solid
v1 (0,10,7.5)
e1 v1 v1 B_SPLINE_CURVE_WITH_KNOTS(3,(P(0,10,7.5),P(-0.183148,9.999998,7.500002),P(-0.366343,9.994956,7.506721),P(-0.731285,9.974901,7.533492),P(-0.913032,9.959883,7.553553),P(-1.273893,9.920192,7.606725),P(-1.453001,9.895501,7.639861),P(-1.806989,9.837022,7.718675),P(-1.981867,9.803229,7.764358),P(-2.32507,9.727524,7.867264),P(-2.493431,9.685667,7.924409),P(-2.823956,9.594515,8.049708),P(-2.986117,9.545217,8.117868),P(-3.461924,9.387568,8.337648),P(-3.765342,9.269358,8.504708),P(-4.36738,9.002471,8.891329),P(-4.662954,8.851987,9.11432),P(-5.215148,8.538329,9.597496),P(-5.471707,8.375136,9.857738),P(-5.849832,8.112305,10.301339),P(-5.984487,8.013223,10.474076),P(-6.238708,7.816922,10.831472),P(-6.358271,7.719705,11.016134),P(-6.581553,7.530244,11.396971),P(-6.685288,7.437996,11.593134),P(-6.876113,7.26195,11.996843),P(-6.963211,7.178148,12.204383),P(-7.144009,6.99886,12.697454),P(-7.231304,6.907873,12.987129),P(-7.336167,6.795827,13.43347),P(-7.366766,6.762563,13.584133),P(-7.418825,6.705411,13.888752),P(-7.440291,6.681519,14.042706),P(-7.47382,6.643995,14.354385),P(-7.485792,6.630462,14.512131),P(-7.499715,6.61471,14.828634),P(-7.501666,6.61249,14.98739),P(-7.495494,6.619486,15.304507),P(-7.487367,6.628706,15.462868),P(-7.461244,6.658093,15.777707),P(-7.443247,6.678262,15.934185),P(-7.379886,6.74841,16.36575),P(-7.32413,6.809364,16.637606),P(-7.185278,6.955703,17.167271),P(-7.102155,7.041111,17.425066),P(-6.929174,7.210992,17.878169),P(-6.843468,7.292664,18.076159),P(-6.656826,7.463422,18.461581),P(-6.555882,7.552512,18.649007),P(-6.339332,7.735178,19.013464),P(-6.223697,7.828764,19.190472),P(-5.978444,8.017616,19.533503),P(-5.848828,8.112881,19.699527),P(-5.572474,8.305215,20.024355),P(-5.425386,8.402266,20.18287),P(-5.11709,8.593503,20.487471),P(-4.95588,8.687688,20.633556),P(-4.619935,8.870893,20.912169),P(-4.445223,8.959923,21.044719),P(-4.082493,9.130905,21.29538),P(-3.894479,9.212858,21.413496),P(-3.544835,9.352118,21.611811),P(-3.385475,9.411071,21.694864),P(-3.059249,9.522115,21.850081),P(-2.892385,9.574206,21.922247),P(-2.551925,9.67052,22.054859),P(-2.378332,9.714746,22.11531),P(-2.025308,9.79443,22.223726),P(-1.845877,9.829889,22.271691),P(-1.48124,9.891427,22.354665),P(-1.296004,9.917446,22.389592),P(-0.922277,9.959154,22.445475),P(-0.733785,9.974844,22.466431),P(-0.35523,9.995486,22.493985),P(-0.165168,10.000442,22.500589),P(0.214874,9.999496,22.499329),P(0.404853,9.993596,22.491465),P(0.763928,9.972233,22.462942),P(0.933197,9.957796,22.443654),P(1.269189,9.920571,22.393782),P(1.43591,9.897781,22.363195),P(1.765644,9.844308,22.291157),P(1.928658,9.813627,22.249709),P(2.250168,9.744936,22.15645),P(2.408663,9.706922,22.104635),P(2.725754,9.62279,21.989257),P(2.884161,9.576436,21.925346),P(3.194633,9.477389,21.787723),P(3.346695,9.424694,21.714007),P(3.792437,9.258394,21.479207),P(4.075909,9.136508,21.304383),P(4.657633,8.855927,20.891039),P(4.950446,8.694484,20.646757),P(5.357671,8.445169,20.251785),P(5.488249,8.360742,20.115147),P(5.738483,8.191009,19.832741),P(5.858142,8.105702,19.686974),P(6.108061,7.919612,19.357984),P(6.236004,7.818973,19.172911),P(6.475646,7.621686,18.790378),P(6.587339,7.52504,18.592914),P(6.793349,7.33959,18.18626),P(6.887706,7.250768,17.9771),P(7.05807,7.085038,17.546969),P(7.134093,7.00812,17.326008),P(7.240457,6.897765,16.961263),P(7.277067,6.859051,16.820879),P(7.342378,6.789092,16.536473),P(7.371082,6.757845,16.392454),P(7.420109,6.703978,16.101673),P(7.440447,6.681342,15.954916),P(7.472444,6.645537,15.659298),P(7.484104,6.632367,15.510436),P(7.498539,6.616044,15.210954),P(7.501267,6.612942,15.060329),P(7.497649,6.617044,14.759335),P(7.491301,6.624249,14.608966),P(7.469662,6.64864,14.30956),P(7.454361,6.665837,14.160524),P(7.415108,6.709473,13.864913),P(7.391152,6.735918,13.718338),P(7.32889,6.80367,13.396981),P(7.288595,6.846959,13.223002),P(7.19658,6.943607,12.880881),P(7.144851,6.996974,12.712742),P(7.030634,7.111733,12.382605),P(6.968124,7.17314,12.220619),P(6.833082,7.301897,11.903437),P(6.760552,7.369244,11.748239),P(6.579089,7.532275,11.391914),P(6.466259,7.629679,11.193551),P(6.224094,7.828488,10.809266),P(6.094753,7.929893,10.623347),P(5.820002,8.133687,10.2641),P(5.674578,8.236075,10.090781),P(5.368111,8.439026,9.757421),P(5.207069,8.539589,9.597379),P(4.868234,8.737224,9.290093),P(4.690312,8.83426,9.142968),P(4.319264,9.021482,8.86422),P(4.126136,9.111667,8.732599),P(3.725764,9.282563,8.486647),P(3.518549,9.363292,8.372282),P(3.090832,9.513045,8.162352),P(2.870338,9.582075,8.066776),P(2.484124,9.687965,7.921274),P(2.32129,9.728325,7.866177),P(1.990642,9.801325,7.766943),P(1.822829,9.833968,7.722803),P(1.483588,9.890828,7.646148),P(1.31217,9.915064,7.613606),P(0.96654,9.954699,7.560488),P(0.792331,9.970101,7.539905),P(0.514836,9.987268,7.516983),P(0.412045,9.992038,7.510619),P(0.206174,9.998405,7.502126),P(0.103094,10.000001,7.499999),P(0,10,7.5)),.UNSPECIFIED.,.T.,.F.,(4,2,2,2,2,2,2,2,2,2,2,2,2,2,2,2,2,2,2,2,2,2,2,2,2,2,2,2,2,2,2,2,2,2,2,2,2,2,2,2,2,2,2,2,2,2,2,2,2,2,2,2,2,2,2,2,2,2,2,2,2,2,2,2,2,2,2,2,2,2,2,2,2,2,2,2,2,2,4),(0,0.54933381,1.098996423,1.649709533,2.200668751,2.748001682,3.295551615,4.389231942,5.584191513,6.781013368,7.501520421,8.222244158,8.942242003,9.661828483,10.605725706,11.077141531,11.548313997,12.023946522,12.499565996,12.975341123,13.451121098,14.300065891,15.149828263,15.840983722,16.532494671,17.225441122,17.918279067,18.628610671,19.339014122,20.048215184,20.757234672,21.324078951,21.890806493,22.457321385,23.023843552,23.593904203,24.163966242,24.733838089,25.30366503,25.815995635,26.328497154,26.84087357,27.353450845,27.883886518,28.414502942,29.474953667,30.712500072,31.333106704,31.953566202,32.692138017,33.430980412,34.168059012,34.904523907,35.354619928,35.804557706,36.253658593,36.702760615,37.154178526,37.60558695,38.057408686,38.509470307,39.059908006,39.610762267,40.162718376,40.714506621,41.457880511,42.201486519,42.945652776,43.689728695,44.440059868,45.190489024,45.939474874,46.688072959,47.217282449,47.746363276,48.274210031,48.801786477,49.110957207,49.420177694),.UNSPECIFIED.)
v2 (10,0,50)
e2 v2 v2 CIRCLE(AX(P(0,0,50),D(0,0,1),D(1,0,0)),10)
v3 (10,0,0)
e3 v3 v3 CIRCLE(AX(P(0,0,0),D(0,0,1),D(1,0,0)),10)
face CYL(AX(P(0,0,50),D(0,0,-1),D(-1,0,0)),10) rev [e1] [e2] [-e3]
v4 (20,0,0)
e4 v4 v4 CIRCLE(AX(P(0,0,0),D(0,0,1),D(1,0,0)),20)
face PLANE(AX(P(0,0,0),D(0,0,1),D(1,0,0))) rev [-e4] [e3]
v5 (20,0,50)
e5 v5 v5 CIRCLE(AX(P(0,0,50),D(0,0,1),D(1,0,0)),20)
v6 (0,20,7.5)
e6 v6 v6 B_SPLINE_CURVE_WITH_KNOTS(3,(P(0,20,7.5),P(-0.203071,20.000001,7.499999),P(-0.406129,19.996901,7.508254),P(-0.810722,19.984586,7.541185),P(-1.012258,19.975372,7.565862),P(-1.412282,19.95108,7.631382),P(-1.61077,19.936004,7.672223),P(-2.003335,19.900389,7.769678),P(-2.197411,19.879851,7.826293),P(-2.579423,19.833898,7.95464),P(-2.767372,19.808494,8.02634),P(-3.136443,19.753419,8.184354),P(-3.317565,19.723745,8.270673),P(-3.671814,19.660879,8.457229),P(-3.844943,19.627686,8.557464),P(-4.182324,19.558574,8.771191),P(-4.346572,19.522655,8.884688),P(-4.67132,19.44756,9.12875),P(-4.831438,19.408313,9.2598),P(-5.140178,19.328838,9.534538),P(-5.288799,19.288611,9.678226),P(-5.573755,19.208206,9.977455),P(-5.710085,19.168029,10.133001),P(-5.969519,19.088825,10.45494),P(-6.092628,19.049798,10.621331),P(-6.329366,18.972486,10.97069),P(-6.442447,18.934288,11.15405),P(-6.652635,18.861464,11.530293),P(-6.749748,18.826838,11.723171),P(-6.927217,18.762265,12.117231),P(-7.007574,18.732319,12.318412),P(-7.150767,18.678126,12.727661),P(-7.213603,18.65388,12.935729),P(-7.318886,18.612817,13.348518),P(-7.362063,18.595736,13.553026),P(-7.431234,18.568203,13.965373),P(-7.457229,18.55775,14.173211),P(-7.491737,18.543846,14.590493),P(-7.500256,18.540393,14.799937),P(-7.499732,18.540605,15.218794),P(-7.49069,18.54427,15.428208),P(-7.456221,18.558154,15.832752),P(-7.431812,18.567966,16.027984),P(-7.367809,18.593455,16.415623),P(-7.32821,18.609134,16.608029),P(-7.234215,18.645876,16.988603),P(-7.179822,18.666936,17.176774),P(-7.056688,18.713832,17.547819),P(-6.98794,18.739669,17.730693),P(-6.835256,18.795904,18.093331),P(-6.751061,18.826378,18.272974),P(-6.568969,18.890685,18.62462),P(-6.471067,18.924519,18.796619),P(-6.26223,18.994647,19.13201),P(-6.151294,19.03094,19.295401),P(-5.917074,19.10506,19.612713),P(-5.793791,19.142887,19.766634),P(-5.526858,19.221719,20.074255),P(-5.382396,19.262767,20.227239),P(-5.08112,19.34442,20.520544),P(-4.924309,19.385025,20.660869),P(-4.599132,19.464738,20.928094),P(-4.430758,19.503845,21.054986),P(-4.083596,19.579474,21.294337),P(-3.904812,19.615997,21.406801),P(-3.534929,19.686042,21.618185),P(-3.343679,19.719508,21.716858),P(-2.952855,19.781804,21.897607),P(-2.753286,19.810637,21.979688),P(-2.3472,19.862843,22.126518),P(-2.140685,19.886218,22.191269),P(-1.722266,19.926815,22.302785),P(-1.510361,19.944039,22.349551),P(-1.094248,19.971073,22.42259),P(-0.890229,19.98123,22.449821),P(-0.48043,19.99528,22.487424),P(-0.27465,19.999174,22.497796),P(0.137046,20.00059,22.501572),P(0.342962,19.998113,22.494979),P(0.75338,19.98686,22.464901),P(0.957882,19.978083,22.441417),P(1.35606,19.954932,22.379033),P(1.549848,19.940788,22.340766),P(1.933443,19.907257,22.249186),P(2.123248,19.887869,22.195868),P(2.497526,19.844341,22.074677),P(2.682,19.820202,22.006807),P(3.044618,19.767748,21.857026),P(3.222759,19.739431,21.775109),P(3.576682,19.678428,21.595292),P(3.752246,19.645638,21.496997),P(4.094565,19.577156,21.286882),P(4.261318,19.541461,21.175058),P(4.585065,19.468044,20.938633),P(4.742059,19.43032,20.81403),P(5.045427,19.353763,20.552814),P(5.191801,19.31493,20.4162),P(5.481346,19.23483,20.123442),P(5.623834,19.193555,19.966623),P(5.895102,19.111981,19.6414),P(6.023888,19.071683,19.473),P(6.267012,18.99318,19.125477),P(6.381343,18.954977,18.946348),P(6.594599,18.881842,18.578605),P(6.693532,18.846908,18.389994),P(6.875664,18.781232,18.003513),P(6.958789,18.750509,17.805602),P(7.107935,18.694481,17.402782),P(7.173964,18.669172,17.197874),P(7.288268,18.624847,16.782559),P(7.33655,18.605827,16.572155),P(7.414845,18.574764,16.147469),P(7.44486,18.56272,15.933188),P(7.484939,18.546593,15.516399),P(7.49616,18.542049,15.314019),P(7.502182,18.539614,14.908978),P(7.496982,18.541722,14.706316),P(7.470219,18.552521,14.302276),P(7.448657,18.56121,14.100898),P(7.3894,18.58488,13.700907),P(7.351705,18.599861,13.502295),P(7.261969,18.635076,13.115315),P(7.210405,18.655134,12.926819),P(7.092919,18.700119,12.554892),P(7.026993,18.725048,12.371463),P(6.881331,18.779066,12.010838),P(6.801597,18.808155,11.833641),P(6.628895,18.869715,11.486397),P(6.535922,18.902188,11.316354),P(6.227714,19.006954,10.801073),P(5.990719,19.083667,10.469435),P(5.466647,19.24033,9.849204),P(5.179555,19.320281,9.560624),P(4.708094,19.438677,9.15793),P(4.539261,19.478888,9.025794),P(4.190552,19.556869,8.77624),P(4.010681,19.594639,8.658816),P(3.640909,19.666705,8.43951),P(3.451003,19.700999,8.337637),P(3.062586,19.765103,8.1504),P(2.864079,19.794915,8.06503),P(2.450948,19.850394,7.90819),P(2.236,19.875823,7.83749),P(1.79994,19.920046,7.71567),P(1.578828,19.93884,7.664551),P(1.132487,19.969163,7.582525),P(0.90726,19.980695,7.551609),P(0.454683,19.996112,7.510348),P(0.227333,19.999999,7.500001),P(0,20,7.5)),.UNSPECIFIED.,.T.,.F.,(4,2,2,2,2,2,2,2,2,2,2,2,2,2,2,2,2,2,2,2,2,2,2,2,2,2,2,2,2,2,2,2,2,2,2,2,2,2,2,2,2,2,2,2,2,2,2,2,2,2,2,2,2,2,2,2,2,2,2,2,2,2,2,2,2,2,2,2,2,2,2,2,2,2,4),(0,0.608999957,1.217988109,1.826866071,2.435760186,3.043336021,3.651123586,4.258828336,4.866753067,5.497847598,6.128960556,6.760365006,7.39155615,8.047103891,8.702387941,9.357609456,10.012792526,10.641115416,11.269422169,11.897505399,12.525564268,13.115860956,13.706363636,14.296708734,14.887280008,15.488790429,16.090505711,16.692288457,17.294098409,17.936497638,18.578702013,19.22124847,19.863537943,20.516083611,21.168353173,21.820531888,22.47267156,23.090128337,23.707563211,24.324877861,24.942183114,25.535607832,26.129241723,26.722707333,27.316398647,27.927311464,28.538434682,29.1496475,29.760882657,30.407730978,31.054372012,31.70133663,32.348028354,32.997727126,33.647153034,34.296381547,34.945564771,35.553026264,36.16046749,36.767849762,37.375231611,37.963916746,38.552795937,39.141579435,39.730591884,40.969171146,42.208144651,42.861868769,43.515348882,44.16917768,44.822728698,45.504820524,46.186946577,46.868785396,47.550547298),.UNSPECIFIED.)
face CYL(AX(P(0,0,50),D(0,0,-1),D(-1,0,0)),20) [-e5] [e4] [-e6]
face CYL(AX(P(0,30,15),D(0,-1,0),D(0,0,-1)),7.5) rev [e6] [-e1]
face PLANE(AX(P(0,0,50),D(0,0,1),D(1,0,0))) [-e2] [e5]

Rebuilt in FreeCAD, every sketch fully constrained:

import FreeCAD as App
import Part
import Sketcher
from FreeCAD import Vector

doc = App.newDocument("Part")
body = doc.addObject("PartDesign::Body", "Body")

sketch1 = body.newObject("Sketcher::SketchObject", "Sketch")
sketch1.AttachmentSupport = (doc.getObject("XY_Plane"), [""])
sketch1.MapMode = "FlatFace"
sketch1.addGeometry(Part.Circle(Vector(0, 0, 0), Vector(0, 0, 1), 20), False)
sketch1.addGeometry(Part.Circle(Vector(0, 0, 0), Vector(0, 0, 1), 10), False)
sketch1.addConstraint(Sketcher.Constraint("Coincident", 0, 3, -1, 1))
sketch1.addConstraint(Sketcher.Constraint("Coincident", 1, 3, -1, 1))
sketch1.addConstraint(Sketcher.Constraint("Diameter", 0, 40.0))
sketch1.addConstraint(Sketcher.Constraint("Diameter", 1, 20.0))
pad1 = body.newObject("PartDesign::Pad", "Pad")
pad1.Profile = sketch1
pad1.Length = 50

sketch2 = body.newObject("Sketcher::SketchObject", "Sketch001")
sketch2.AttachmentSupport = (doc.getObject("XZ_Plane"), [""])
sketch2.MapMode = "FlatFace"
sketch2.addGeometry(Part.Circle(Vector(0, 15, 0), Vector(0, 0, 1), 7.5), False)
sketch2.addConstraint(Sketcher.Constraint("PointOnObject", 0, 3, -2))
sketch2.addConstraint(Sketcher.Constraint("Diameter", 0, 15.0))
sketch2.addConstraint(Sketcher.Constraint("DistanceY", -1, 1, 0, 3, 15.0))
pocket1 = body.newObject("PartDesign::Pocket", "Pocket")
pocket1.Profile = sketch2
pocket1.Length = 30

doc.recompute()
